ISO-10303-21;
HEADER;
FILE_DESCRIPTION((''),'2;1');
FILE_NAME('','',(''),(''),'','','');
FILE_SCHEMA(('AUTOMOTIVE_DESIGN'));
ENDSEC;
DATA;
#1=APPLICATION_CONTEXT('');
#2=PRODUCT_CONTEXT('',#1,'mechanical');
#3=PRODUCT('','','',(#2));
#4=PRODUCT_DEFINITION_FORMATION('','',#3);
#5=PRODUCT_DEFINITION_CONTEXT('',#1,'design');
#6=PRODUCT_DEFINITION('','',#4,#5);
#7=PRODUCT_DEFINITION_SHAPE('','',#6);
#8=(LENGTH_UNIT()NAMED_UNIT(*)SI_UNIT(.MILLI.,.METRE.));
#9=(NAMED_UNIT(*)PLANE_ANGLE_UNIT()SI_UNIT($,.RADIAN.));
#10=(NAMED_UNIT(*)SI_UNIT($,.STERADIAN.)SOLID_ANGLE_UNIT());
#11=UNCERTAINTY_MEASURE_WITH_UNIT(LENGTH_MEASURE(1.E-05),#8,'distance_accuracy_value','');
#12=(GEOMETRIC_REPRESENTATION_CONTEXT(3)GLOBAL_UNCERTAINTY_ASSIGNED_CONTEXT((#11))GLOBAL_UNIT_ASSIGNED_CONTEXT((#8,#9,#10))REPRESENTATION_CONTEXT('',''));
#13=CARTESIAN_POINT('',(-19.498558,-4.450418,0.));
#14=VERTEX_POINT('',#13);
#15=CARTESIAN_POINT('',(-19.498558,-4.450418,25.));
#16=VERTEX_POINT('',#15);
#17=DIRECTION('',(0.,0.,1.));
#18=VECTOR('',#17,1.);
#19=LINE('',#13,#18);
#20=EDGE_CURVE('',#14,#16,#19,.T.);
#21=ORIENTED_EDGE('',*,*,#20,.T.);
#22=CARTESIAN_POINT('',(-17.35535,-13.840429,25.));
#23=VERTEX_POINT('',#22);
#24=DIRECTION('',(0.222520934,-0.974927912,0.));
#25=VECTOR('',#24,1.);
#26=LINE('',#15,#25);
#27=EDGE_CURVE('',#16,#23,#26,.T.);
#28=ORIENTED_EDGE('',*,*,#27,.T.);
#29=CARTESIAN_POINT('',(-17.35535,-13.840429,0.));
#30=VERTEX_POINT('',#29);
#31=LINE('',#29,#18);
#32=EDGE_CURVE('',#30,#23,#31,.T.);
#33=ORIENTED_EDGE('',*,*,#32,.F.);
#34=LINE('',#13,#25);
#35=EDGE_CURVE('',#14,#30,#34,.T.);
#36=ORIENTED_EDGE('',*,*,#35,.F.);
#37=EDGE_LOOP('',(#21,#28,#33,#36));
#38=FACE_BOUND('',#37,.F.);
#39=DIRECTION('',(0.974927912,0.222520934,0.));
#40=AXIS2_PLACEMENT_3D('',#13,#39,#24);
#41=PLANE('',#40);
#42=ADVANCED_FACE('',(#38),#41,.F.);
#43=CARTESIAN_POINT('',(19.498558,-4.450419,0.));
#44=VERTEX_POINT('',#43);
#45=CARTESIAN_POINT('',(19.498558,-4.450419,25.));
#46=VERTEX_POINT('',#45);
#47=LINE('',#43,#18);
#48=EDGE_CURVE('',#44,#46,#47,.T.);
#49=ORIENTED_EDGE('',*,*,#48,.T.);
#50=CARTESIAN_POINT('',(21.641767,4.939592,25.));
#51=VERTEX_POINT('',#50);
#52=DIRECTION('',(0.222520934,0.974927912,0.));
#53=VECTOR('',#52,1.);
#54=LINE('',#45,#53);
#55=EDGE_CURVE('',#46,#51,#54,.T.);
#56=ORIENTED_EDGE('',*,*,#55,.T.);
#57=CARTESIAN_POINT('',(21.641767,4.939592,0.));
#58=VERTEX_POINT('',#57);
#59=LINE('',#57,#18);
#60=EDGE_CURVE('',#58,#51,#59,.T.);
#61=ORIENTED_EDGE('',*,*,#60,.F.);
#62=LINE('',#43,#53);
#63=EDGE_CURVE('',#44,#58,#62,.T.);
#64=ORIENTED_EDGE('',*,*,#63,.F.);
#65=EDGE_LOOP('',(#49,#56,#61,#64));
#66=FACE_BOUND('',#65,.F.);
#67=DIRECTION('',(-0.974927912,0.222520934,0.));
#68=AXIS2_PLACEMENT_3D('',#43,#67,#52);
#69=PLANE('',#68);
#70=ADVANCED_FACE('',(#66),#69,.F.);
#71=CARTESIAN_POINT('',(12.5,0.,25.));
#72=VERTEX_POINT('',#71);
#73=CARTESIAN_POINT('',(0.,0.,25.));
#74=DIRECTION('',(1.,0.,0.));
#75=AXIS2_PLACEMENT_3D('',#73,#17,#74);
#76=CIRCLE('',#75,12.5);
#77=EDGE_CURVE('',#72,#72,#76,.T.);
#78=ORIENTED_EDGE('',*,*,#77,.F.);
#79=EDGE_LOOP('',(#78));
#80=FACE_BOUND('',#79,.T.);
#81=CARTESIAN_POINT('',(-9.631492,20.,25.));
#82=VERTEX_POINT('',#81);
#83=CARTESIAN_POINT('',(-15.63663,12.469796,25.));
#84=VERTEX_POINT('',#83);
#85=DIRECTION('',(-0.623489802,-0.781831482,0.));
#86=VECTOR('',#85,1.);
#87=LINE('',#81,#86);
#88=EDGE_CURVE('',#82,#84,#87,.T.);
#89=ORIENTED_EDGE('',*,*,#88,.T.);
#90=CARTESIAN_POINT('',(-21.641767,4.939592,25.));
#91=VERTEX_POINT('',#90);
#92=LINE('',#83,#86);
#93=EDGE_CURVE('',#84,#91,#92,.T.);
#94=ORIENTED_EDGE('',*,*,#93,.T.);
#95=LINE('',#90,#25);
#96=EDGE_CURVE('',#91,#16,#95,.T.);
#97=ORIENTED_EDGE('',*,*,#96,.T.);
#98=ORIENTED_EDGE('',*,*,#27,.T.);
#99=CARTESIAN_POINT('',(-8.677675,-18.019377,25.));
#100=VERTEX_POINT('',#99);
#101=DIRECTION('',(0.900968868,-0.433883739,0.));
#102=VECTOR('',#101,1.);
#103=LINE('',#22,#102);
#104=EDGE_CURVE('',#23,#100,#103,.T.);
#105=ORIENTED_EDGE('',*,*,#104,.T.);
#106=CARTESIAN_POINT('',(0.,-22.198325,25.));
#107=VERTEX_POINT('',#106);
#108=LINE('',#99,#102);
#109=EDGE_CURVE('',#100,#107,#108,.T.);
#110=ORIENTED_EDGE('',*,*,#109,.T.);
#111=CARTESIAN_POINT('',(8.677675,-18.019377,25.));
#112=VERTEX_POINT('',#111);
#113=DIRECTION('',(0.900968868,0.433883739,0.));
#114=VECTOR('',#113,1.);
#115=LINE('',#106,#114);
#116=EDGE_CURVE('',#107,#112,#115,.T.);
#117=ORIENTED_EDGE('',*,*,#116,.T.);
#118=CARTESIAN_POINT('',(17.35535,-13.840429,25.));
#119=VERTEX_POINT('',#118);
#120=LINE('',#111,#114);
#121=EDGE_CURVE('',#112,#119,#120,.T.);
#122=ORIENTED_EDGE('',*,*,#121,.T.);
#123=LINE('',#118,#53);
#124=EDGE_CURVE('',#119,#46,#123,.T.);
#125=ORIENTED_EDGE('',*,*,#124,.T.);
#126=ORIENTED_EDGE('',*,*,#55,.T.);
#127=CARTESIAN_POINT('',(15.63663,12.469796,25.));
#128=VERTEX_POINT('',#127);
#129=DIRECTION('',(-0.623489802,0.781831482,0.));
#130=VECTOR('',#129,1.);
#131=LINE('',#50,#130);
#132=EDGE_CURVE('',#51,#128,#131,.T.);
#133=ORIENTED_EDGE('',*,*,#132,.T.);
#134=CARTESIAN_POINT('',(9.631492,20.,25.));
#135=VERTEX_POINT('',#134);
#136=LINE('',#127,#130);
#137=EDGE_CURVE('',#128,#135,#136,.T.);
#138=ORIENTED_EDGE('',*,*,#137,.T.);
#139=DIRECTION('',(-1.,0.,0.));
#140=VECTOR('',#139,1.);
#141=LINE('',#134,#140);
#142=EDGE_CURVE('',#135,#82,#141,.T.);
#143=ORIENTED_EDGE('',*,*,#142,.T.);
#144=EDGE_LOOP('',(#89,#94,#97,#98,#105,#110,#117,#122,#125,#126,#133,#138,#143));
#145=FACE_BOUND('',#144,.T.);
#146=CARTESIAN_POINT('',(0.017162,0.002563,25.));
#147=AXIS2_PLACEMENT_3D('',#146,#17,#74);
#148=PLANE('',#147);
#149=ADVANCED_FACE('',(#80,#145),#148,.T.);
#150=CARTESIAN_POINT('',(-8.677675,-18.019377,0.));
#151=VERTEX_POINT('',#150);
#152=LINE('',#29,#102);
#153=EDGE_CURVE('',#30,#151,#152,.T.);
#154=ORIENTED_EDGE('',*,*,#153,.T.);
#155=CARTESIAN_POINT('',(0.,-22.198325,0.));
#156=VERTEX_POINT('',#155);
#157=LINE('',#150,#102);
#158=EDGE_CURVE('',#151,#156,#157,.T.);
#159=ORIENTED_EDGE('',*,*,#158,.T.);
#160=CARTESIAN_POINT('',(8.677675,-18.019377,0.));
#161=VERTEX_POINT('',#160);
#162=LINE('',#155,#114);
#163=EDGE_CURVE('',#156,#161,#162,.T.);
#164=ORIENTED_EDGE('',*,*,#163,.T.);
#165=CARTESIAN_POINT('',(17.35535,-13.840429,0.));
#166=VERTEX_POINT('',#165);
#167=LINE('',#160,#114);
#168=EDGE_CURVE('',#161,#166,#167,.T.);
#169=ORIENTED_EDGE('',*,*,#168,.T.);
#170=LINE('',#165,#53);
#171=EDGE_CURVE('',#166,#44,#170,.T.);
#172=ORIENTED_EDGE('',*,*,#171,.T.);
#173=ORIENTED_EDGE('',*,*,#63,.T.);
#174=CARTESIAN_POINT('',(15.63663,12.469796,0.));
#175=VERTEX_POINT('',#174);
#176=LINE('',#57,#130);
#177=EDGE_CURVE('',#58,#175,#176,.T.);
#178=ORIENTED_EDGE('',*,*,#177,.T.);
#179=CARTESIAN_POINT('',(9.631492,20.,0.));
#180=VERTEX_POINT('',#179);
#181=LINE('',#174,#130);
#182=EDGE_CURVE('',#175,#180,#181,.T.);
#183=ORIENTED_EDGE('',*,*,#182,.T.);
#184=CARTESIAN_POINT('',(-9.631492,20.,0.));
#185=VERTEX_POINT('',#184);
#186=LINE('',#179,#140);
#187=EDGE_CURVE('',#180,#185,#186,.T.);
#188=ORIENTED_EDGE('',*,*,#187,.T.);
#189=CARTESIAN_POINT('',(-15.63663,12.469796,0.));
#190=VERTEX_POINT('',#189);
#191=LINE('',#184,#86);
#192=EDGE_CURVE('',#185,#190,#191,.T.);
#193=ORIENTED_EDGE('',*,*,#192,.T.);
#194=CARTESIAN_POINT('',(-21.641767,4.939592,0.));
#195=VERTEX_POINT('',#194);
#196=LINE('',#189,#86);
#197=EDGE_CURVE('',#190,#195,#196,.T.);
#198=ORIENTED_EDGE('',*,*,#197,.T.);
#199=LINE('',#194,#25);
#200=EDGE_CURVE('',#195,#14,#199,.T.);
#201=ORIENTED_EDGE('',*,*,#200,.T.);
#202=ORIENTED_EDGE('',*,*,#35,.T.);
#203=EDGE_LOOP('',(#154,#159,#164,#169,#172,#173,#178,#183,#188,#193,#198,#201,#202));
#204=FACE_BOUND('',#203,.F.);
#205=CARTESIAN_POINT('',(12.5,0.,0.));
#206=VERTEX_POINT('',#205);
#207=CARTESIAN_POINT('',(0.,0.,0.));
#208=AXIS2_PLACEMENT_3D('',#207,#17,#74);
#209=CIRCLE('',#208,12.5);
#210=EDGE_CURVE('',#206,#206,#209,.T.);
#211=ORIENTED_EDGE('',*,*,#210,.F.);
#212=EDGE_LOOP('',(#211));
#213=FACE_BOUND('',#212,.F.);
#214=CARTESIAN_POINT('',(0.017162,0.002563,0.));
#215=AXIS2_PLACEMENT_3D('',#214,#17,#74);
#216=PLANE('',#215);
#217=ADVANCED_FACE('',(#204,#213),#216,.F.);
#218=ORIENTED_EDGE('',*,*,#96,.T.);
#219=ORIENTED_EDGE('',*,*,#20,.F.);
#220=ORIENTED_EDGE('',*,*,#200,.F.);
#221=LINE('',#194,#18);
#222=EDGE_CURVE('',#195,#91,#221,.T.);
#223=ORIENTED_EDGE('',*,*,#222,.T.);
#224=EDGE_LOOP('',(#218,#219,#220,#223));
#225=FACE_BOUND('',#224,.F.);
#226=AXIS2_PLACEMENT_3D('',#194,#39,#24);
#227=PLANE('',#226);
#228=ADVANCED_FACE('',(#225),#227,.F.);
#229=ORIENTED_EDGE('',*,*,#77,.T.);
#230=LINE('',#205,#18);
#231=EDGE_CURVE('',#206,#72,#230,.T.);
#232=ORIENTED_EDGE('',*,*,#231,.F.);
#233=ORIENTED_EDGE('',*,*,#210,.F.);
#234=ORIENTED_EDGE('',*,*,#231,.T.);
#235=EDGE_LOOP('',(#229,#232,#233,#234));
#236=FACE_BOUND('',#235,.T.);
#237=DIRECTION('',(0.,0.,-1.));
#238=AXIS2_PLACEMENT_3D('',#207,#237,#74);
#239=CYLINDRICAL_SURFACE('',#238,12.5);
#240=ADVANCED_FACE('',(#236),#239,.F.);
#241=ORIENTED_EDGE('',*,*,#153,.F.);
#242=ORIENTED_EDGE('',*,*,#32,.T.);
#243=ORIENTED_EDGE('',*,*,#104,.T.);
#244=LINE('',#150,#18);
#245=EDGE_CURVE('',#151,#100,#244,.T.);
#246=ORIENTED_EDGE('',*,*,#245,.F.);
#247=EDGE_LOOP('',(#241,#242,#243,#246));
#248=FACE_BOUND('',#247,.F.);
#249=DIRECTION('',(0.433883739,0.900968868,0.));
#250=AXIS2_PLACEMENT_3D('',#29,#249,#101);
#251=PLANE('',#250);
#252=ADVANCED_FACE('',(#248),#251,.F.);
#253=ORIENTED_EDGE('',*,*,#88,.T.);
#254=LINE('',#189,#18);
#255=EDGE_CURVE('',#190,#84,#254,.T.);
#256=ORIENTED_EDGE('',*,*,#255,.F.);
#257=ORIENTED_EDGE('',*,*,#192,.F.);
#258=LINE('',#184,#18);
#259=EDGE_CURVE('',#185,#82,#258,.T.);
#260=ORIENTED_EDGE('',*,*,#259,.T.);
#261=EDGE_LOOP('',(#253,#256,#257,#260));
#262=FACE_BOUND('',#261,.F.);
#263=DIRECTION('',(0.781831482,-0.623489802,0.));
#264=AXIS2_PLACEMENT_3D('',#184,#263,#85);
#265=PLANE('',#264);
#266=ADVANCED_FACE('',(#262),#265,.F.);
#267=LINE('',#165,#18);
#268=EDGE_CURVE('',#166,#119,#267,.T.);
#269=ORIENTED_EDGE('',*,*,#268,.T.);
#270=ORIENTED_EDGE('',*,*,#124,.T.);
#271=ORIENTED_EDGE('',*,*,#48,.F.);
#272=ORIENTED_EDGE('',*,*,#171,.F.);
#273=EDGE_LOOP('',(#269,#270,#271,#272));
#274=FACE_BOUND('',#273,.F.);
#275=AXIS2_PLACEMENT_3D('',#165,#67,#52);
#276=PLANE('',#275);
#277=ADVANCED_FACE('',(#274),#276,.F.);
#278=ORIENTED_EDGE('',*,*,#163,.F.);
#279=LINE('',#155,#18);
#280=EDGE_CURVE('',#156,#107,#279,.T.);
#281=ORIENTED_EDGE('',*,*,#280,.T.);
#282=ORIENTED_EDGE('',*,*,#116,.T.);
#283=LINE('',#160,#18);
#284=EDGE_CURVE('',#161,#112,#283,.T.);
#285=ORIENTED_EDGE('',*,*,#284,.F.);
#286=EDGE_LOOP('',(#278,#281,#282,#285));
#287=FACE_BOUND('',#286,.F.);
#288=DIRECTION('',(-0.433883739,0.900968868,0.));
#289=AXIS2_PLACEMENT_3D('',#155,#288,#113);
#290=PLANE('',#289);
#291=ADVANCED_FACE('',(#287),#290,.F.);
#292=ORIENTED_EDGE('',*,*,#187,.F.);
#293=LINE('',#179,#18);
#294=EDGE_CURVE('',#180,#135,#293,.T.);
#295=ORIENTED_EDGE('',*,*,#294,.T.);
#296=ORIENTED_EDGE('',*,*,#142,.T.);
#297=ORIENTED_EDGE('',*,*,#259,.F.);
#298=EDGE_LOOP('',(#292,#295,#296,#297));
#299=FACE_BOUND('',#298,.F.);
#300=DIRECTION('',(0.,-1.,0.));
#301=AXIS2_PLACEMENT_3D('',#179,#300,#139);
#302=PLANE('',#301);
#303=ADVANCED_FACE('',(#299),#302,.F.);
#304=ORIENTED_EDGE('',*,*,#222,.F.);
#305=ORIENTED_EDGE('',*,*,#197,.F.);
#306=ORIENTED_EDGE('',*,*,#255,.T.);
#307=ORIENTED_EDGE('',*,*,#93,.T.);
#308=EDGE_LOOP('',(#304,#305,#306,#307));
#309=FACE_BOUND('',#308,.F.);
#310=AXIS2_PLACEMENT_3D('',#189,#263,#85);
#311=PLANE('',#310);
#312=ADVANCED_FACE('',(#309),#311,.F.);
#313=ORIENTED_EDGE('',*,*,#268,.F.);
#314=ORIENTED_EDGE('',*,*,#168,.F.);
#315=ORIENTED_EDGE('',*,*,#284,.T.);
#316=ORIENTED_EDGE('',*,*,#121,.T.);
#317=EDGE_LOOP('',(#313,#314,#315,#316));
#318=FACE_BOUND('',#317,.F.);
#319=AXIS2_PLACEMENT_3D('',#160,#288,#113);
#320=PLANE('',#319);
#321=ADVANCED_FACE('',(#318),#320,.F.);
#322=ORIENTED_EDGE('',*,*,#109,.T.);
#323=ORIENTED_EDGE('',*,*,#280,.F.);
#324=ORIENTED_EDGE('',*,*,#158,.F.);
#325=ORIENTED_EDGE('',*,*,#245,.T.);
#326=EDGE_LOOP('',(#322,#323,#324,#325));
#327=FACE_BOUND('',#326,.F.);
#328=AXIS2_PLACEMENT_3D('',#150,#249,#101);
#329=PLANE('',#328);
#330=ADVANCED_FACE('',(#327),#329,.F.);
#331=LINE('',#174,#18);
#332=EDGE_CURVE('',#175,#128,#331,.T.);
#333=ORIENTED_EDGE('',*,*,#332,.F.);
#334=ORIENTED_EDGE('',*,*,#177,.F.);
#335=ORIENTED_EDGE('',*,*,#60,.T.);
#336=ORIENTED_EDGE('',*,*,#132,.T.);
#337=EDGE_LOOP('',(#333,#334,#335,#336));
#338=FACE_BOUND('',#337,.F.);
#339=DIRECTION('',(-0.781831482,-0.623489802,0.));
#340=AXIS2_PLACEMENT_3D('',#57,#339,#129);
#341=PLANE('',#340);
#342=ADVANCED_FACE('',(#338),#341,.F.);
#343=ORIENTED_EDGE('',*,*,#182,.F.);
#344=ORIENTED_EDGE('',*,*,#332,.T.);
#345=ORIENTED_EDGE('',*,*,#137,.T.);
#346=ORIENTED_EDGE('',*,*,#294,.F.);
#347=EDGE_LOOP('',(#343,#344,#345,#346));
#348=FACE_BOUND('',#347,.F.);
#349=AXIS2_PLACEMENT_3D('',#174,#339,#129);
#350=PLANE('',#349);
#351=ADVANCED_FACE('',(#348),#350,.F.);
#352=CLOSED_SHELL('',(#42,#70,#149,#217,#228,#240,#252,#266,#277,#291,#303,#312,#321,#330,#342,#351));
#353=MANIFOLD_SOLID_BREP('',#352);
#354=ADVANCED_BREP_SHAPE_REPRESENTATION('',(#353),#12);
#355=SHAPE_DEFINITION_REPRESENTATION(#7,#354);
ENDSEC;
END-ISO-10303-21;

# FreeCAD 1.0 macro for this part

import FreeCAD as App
import Part
import Sketcher
Q = App.Units.Quantity

doc = App.newDocument("Part")
params = doc.addObject("Spreadsheet::Sheet", "Params")
for row, (alias, value) in enumerate([
    ("sketch1_diameter", "25 mm"),
    ("pad1_length", "25 mm"),
], start=1):
    params.set(f"A{row}", alias)
    params.set(f"B{row}", "=" + value)
    params.setAlias(f"B{row}", alias)

body = doc.addObject("PartDesign::Body", "Body")

# Sketch on XY plane
sketch1 = body.newObject("Sketcher::SketchObject", "Sketch")
sketch1.AttachmentSupport = (doc.getObject("XY_Plane"), [""])
sketch1.MapMode = "FlatFace"
sketch1.addGeometry(Part.LineSegment(App.Vector(19, -4, 0), App.Vector(22, 5, 0)), False)
sketch1.addGeometry(Part.LineSegment(App.Vector(22, 5, 0), App.Vector(16, 12, 0)), False)
sketch1.addGeometry(Part.LineSegment(App.Vector(16, 12, 0), App.Vector(10, 20, 0)), False)
sketch1.addGeometry(Part.LineSegment(App.Vector(10, 20, 0), App.Vector(-10, 20, 0)), False)
sketch1.addGeometry(Part.LineSegment(App.Vector(-10, 20, 0), App.Vector(-16, 12, 0)), False)
sketch1.addGeometry(Part.LineSegment(App.Vector(-16, 12, 0), App.Vector(-22, 5, 0)), False)
sketch1.addGeometry(Part.LineSegment(App.Vector(-22, 5, 0), App.Vector(-19, -4, 0)), False)
sketch1.addGeometry(Part.LineSegment(App.Vector(-19, -4, 0), App.Vector(-17, -14, 0)), False)
sketch1.addGeometry(Part.LineSegment(App.Vector(-17, -14, 0), App.Vector(-9, -18, 0)), False)
sketch1.addGeometry(Part.LineSegment(App.Vector(-9, -18, 0), App.Vector(0, -22, 0)), False)
sketch1.addGeometry(Part.LineSegment(App.Vector(0, -22, 0), App.Vector(9, -18, 0)), False)
sketch1.addGeometry(Part.LineSegment(App.Vector(9, -18, 0), App.Vector(17, -14, 0)), False)
sketch1.addGeometry(Part.LineSegment(App.Vector(17, -14, 0), App.Vector(19, -4, 0)), False)
sketch1.addGeometry(Part.Circle(App.Vector(0, 0, 0), App.Vector(0, 0, 1), 12), False)
sketch1.addConstraint(Sketcher.Constraint("Coincident", 0, 2, 1, 1))
sketch1.addConstraint(Sketcher.Constraint("Coincident", 1, 2, 2, 1))
sketch1.addConstraint(Sketcher.Constraint("Coincident", 2, 2, 3, 1))
sketch1.addConstraint(Sketcher.Constraint("Coincident", 3, 2, 4, 1))
sketch1.addConstraint(Sketcher.Constraint("Coincident", 4, 2, 5, 1))
sketch1.addConstraint(Sketcher.Constraint("Coincident", 5, 2, 6, 1))
sketch1.addConstraint(Sketcher.Constraint("Coincident", 6, 2, 7, 1))
sketch1.addConstraint(Sketcher.Constraint("Coincident", 7, 2, 8, 1))
sketch1.addConstraint(Sketcher.Constraint("Coincident", 8, 2, 9, 1))
sketch1.addConstraint(Sketcher.Constraint("Coincident", 9, 2, 10, 1))
sketch1.addConstraint(Sketcher.Constraint("Coincident", 10, 2, 11, 1))
sketch1.addConstraint(Sketcher.Constraint("Coincident", 11, 2, 12, 1))
sketch1.addConstraint(Sketcher.Constraint("Coincident", 12, 2, 0, 1))
sketch1.addConstraint(Sketcher.Constraint("Horizontal", 3))
sketch1.addConstraint(Sketcher.Constraint("Coincident", 13, 3, -1, 1))
sketch1.addConstraint(Sketcher.Constraint("Symmetric", 1, 2, 4, 2, -2))
sketch1.addConstraint(Sketcher.Constraint("Symmetric", 0, 2, 5, 2, -2))
sketch1.addConstraint(Sketcher.Constraint("Symmetric", 8, 2, 10, 2, -2))
sketch1.addConstraint(Sketcher.Constraint("Symmetric", 7, 2, 11, 2, -2))
sketch1.addConstraint(Sketcher.Constraint("Symmetric", 6, 2, 12, 2, -2))
sketch1.addConstraint(Sketcher.Constraint("PointOnObject", 9, 2, -2))
sketch1.addConstraint(Sketcher.Constraint("Parallel", 1, 2))
sketch1.addConstraint(Sketcher.Constraint("Parallel", 4, 5))
sketch1.addConstraint(Sketcher.Constraint("Parallel", 6, 7))
sketch1.addConstraint(Sketcher.Constraint("Parallel", 8, 9))
sketch1.addConstraint(Sketcher.Constraint("Equal", 0, 1))
sketch1.addConstraint(Sketcher.Constraint("Equal", 1, 2))
sketch1.addConstraint(Sketcher.Constraint("Equal", 6, 7))
sketch1.addConstraint(Sketcher.Constraint("Equal", 7, 8))
sketch1.addConstraint(Sketcher.Constraint("Equal", 8, 9))
sketch1.addConstraint(Sketcher.Constraint("Diameter", 13, Q("25 mm")))
sketch1.addConstraint(Sketcher.Constraint("DistanceY", -1, 1, 2, 2, Q("20 mm")))
sketch1.addConstraint(Sketcher.Constraint("DistanceX", 3, 2, 3, 1, Q("19.262985 mm")))
sketch1.addConstraint(Sketcher.Constraint("DistanceX", -1, 1, 1, 2, Q("15.63663 mm")))
sketch1.addConstraint(Sketcher.Constraint("DistanceX", 6, 2, -1, 1, Q("19.498558 mm")))
sketch1.addConstraint(Sketcher.Constraint("DistanceY", 6, 2, -1, 1, Q("4.450418 mm")))
sketch1.setExpression("Constraints[30]", "Params.sketch1_diameter")
pad1 = body.newObject("PartDesign::Pad", "Pad")
pad1.Profile = sketch1
pad1.setExpression("Length", "Params.pad1_length")

doc.recompute()
